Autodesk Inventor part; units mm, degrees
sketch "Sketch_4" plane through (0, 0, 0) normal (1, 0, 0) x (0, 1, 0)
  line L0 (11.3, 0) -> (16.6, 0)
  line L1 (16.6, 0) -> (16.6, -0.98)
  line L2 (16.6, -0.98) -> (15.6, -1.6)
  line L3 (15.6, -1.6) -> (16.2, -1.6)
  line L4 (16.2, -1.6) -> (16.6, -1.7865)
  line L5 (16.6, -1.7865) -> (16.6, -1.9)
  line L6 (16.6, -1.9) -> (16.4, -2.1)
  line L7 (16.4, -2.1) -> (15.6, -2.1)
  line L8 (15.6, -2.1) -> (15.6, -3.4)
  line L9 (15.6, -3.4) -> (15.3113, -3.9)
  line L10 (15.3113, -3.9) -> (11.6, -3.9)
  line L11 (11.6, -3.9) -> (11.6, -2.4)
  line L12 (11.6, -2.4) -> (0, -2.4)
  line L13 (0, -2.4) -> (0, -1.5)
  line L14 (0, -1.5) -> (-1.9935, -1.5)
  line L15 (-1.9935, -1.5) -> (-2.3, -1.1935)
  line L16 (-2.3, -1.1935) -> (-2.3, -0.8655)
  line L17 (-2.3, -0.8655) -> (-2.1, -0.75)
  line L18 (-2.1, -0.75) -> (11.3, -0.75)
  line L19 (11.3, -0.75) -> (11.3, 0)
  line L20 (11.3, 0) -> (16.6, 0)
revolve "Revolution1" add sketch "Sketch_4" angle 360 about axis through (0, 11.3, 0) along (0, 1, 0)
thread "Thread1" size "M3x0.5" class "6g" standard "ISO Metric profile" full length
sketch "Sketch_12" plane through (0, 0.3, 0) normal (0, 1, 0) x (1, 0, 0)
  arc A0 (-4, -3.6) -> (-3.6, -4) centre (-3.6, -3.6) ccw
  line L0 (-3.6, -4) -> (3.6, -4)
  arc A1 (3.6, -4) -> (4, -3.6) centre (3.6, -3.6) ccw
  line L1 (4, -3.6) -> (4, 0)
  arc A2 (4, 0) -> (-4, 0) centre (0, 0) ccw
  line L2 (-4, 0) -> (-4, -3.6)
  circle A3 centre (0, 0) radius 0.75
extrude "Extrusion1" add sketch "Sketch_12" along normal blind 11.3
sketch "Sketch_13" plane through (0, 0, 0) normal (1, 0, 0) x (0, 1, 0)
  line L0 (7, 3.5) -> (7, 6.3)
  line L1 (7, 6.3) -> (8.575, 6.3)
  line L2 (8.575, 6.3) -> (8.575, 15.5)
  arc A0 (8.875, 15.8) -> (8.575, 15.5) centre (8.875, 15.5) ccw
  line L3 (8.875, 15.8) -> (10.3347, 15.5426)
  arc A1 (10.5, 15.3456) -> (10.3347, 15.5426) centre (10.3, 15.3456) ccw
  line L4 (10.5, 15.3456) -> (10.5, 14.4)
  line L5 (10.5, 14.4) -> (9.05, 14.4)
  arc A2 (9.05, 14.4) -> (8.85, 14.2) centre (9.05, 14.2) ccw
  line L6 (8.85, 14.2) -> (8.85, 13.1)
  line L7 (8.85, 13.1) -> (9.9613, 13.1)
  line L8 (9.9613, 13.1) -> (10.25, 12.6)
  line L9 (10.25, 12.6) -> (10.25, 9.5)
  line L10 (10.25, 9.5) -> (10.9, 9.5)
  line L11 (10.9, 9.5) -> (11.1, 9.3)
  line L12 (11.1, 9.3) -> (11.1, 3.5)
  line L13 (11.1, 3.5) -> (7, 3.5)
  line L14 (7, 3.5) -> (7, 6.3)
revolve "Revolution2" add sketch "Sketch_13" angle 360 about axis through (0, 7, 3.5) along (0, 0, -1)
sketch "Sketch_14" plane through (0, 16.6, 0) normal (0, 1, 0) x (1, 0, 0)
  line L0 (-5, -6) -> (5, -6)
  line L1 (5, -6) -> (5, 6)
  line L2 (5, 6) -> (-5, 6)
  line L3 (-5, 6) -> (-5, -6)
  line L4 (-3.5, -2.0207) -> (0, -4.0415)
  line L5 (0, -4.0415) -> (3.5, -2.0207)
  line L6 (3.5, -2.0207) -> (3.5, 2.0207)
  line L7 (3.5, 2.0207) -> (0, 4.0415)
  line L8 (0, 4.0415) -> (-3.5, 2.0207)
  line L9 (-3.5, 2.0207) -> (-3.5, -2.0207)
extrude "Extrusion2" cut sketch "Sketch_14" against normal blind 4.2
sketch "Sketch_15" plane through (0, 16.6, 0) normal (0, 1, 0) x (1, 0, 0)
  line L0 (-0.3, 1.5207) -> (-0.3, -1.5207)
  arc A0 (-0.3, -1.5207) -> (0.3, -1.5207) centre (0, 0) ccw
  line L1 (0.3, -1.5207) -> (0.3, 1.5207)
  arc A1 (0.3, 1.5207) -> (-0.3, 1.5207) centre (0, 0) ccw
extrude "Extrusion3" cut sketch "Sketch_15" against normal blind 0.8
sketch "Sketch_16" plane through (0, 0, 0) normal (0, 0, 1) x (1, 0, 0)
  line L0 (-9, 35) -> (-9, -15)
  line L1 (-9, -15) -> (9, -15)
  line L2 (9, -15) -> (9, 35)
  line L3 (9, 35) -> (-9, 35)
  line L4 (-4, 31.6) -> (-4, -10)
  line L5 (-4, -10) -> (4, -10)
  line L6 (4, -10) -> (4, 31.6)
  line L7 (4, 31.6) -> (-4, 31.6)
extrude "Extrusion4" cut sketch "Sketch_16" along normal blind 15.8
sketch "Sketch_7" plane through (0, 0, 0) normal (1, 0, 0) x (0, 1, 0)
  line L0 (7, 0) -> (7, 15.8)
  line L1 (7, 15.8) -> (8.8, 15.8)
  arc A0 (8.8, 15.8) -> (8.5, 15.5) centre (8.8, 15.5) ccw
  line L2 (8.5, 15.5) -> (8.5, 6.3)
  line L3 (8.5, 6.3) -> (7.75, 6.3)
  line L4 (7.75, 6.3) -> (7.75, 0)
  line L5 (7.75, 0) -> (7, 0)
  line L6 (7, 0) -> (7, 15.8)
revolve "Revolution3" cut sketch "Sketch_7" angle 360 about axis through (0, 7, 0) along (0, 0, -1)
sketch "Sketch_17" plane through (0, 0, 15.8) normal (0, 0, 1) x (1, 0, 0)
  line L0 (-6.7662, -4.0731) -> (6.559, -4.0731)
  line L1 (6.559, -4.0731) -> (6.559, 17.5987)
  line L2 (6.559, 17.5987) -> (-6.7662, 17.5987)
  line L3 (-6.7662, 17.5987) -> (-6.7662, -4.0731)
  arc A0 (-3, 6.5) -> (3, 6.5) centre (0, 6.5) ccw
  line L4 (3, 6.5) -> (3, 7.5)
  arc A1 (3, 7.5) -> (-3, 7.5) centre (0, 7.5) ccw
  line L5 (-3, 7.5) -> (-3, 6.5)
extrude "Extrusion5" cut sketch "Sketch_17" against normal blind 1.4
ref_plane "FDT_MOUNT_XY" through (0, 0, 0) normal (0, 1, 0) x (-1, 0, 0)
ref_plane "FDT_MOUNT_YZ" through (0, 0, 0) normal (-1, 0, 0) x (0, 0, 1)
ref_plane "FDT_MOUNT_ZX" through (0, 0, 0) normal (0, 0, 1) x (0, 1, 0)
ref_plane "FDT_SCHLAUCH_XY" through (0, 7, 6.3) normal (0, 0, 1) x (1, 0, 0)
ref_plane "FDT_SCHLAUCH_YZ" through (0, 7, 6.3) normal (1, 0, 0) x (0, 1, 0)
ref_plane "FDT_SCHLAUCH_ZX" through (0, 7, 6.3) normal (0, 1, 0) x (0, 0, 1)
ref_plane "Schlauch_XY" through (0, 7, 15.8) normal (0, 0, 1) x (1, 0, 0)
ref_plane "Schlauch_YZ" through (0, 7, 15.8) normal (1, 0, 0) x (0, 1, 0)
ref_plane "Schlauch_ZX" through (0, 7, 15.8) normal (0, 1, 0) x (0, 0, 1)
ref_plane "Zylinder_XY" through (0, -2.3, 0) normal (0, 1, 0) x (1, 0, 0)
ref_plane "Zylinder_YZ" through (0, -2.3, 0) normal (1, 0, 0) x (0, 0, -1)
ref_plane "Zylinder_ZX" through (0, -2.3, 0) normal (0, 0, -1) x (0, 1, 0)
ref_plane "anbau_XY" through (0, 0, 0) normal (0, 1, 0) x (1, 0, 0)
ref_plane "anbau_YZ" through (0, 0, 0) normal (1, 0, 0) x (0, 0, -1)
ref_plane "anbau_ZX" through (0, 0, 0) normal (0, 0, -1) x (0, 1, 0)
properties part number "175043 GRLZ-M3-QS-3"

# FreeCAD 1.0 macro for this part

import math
import FreeCAD as App
import Part
import Sketcher

V = App.Vector
Q = App.Units.Quantity


def add_polygon(sketch, points):
    """Adds a closed chain of lines whose ends are joined by coincident constraints."""
    first, n = sketch.GeometryCount, len(points)
    for a, b in zip(points, points[1:] + points[:1]):
        sketch.addGeometry(Part.LineSegment(App.Vector(*a, 0), App.Vector(*b, 0)), False)
    for i in range(n):
        sketch.addConstraint(Sketcher.Constraint("Coincident", first + i, 2, first + (i + 1) % n, 1))

doc = App.newDocument("Part")
body = doc.addObject("PartDesign::Body", "Body")

# Sketch on YZ plane
sketch1 = doc.addObject("Sketcher::SketchObject", "Sketch")
body.addObject(sketch1)
sketch1.AttachmentSupport = (doc.YZ_Plane, [""])
sketch1.MapMode = "FlatFace"
add_polygon(sketch1, [(16.6, 0), (11.3, 0), (11.3, -0.75), (-2.1, -0.75), (-2.3, -0.8655), (-2.3, -1.1935), (-1.9935, -1.5), (0, -1.5), (0, -2.4), (11.6, -2.4), (11.6, -3.9), (15.3113, -3.9), (15.6, -3.4), (15.6, -2.1), (16.4, -2.1), (16.6, -1.9), (16.6, -1.7865), (16.2, -1.6), (15.6, -1.6), (16.6, -0.98)])  # lines 0-19
sketch1.addConstraint(Sketcher.Constraint("Horizontal", 0))
sketch1.addConstraint(Sketcher.Constraint("Vertical", 1))
sketch1.addConstraint(Sketcher.Constraint("Horizontal", 2))
sketch1.addConstraint(Sketcher.Constraint("Vertical", 4))
sketch1.addConstraint(Sketcher.Constraint("Horizontal", 6))
sketch1.addConstraint(Sketcher.Constraint("Vertical", 7))
sketch1.addConstraint(Sketcher.Constraint("Horizontal", 8))
sketch1.addConstraint(Sketcher.Constraint("Vertical", 9))
sketch1.addConstraint(Sketcher.Constraint("Horizontal", 10))
sketch1.addConstraint(Sketcher.Constraint("Vertical", 12))
sketch1.addConstraint(Sketcher.Constraint("Horizontal", 13))
sketch1.addConstraint(Sketcher.Constraint("Vertical", 15))
sketch1.addConstraint(Sketcher.Constraint("Horizontal", 17))
sketch1.addConstraint(Sketcher.Constraint("Vertical", 19))
sketch1.addConstraint(Sketcher.Constraint("PointOnObject", 0, 2, -1))
sketch1.addConstraint(Sketcher.Constraint("PointOnObject", 6, 2, -2))
sketch1.addConstraint(Sketcher.Constraint("Perpendicular", 5, 14))
sketch1.addConstraint(Sketcher.Constraint("Vertical", 12, 2, 17, 2))
sketch1.addConstraint(Sketcher.Constraint("Vertical", 15, 2, 18, 2))
sketch1.addConstraint(Sketcher.Constraint("Angle", 5, Q("-45 deg")))
sketch1.addConstraint(Sketcher.Constraint("DistanceX", 0, 2, 0, 1, 5.3))
sketch1.addConstraint(Sketcher.Constraint("DistanceX", 2, 2, 2, 1, 13.4))
sketch1.addConstraint(Sketcher.Constraint("DistanceX", 8, 1, 8, 2, 11.6))
sketch1.addConstraint(Sketcher.Constraint("DistanceX", 13, 1, 13, 2, 0.8))
sketch1.addConstraint(Sketcher.Constraint("DistanceX", 17, 2, 17, 1, 0.6))
sketch1.addConstraint(Sketcher.Constraint("DistanceY", 7, 2, 7, 1, 0.9))
sketch1.addConstraint(Sketcher.Constraint("DistanceY", 9, 2, 9, 1, 1.5))
sketch1.addConstraint(Sketcher.Constraint("DistanceY", 12, 1, 12, 2, 1.3))
sketch1.addConstraint(Sketcher.Constraint("Angle", 18, Q("31.799 deg")))
sketch1.addConstraint(Sketcher.Constraint("DistanceX", 9, 2, 11, 2, 4.0))
sketch1.addConstraint(Sketcher.Constraint("DistanceY", 11, 2, 8, 2, 1.0))
sketch1.addConstraint(Sketcher.Constraint("DistanceX", 12, 2, 14, 2, 1.0))
sketch1.addConstraint(Sketcher.Constraint("DistanceY", 1, 2, 1, 1, 0.75))
sketch1.addConstraint(Sketcher.Constraint("DistanceY", 19, 1, 19, 2, 0.98))
sketch1.addConstraint(Sketcher.Constraint("DistanceX", 3, 2, -1, 1, 2.3))
sketch1.addConstraint(Sketcher.Constraint("DistanceY", 5, 2, -1, 1, 1.5))
sketch1.addConstraint(Sketcher.Constraint("DistanceY", 4, 2, 4, 1, 0.328))
sketch1.addConstraint(Sketcher.Constraint("Distance", 3, 0.231))
sketch1.addConstraint(Sketcher.Constraint("DistanceX", 10, 1, 10, 2, 3.7113))
sketch1.addConstraint(Sketcher.Constraint("DistanceY", 15, 1, 15, 2, 0.1135))
revolution = doc.addObject("PartDesign::Revolution", "Revolution")
body.addObject(revolution)
revolution.Profile = sketch1
revolution.ReferenceAxis = (sketch1, ["H_Axis"])
revolution.Angle = 360

# Sketch on XZ plane
sketch2 = doc.addObject("Sketcher::SketchObject", "Sketch001")
body.addObject(sketch2)
sketch2.AttachmentSupport = (doc.XZ_Plane, [""])
sketch2.MapMode = "FlatFace"
sketch2.AttachmentOffset = App.Placement(V(0, 0, -0.3), App.Rotation())
sketch2.addGeometry(Part.LineSegment(V(-4, 0, 0), V(-4, 3.6, 0)), False)
sketch2.addGeometry(Part.ArcOfCircle(Part.Circle(V(-3.6, 3.6, 0), V(0, 0, 1), 0.4), math.radians(90), math.radians(180)), False)
sketch2.addGeometry(Part.LineSegment(V(-3.6, 4, 0), V(3.6, 4, 0)), False)
sketch2.addGeometry(Part.ArcOfCircle(Part.Circle(V(3.6, 3.6, 0), V(0, 0, 1), 0.4), math.radians(0), math.radians(90)), False)
sketch2.addGeometry(Part.LineSegment(V(4, 3.6, 0), V(4, 0, 0)), False)
sketch2.addGeometry(Part.ArcOfCircle(Part.Circle(V(0, 0, 0), V(0, 0, 1), 4), math.radians(180), math.radians(360)), False)
sketch2.addGeometry(Part.Circle(V(0, 0, 0), V(0, 0, 1), 0.75), False)
sketch2.addConstraint(Sketcher.Constraint("Tangent", 0, 2, 1, 2))
sketch2.addConstraint(Sketcher.Constraint("Tangent", 1, 1, 2, 1))
sketch2.addConstraint(Sketcher.Constraint("Tangent", 2, 2, 3, 2))
sketch2.addConstraint(Sketcher.Constraint("Tangent", 3, 1, 4, 1))
sketch2.addConstraint(Sketcher.Constraint("Tangent", 4, 2, 5, 2))
sketch2.addConstraint(Sketcher.Constraint("Tangent", 5, 1, 0, 1))
sketch2.addConstraint(Sketcher.Constraint("Vertical", 0))
sketch2.addConstraint(Sketcher.Constraint("Horizontal", 2))
sketch2.addConstraint(Sketcher.Constraint("Vertical", 4))
sketch2.addConstraint(Sketcher.Constraint("Coincident", 5, 3, -1, 1))
sketch2.addConstraint(Sketcher.Constraint("Coincident", 6, 3, -1, 1))
sketch2.addConstraint(Sketcher.Constraint("Equal", 1, 3))
sketch2.addConstraint(Sketcher.Constraint("Radius", 5, 4.0))
sketch2.addConstraint(Sketcher.Constraint("Diameter", 6, 1.5))
sketch2.addConstraint(Sketcher.Constraint("Radius", 1, 0.4))
sketch2.addConstraint(Sketcher.Constraint("DistanceY", 0, 1, 0, 2, 3.6))
pad1 = doc.addObject("PartDesign::Pad", "Pad")
body.addObject(pad1)
pad1.Profile = sketch2
pad1.Length = 11.3
pad1.Reversed = True

# Sketch on YZ plane
sketch3 = doc.addObject("Sketcher::SketchObject", "Sketch002")
body.addObject(sketch3)
sketch3.AttachmentSupport = (doc.YZ_Plane, [""])
sketch3.MapMode = "FlatFace"
sketch3.addGeometry(Part.LineSegment(V(7, 6.3, 0), V(7, 3.5, 0)), False)
sketch3.addGeometry(Part.LineSegment(V(7, 3.5, 0), V(11.1, 3.5, 0)), False)
sketch3.addGeometry(Part.LineSegment(V(11.1, 3.5, 0), V(11.1, 9.3, 0)), False)
sketch3.addGeometry(Part.LineSegment(V(11.1, 9.3, 0), V(10.9, 9.5, 0)), False)
sketch3.addGeometry(Part.LineSegment(V(10.9, 9.5, 0), V(10.25, 9.5, 0)), False)
sketch3.addGeometry(Part.LineSegment(V(10.25, 9.5, 0), V(10.25, 12.6, 0)), False)
sketch3.addGeometry(Part.LineSegment(V(10.25, 12.6, 0), V(9.9613, 13.1, 0)), False)
sketch3.addGeometry(Part.LineSegment(V(9.9613, 13.1, 0), V(8.85, 13.1, 0)), False)
sketch3.addGeometry(Part.LineSegment(V(8.85, 13.1, 0), V(8.85, 14.2, 0)), False)
sketch3.addGeometry(Part.ArcOfCircle(Part.Circle(V(9.05, 14.2, 0), V(0, 0, 1), 0.2), math.radians(90), math.radians(180)), False)
sketch3.addGeometry(Part.LineSegment(V(9.05, 14.4, 0), V(10.5, 14.4, 0)), False)
sketch3.addGeometry(Part.LineSegment(V(10.5, 14.4, 0), V(10.5, 15.3456, 0)), False)
sketch3.addGeometry(Part.ArcOfCircle(Part.Circle(V(10.3, 15.3456, 0), V(0, 0, 1), 0.2), math.radians(0), math.radians(80.010272)), False)
sketch3.addGeometry(Part.LineSegment(V(10.3347, 15.5426, 0), V(8.875, 15.8, 0)), False)
sketch3.addGeometry(Part.ArcOfCircle(Part.Circle(V(8.875, 15.5, 0), V(0, 0, 1), 0.3), math.radians(90), math.radians(180)), False)
sketch3.addGeometry(Part.LineSegment(V(8.575, 15.5, 0), V(8.575, 6.3, 0)), False)
sketch3.addGeometry(Part.LineSegment(V(8.575, 6.3, 0), V(7, 6.3, 0)), False)
sketch3.addGeometry(Part.LineSegment(V(7, 15.8, 0), V(7, 3.5, 0)), True)  # axis
sketch3.addConstraint(Sketcher.Constraint("Coincident", 0, 2, 1, 1))
sketch3.addConstraint(Sketcher.Constraint("Coincident", 1, 2, 2, 1))
sketch3.addConstraint(Sketcher.Constraint("Coincident", 2, 2, 3, 1))
sketch3.addConstraint(Sketcher.Constraint("Coincident", 3, 2, 4, 1))
sketch3.addConstraint(Sketcher.Constraint("Coincident", 4, 2, 5, 1))
sketch3.addConstraint(Sketcher.Constraint("Coincident", 5, 2, 6, 1))
sketch3.addConstraint(Sketcher.Constraint("Coincident", 6, 2, 7, 1))
sketch3.addConstraint(Sketcher.Constraint("Coincident", 7, 2, 8, 1))
sketch3.addConstraint(Sketcher.Constraint("Tangent", 8, 2, 9, 2))
sketch3.addConstraint(Sketcher.Constraint("Tangent", 9, 1, 10, 1))
sketch3.addConstraint(Sketcher.Constraint("Coincident", 10, 2, 11, 1))
sketch3.addConstraint(Sketcher.Constraint("Tangent", 11, 2, 12, 1))
sketch3.addConstraint(Sketcher.Constraint("Tangent", 12, 2, 13, 1))
sketch3.addConstraint(Sketcher.Constraint("Coincident", 13, 2, 14, 1))
sketch3.addConstraint(Sketcher.Constraint("Tangent", 14, 2, 15, 1))
sketch3.addConstraint(Sketcher.Constraint("Coincident", 15, 2, 16, 1))
sketch3.addConstraint(Sketcher.Constraint("Coincident", 16, 2, 0, 1))
sketch3.addConstraint(Sketcher.Constraint("Vertical", 0))
sketch3.addConstraint(Sketcher.Constraint("Horizontal", 1))
sketch3.addConstraint(Sketcher.Constraint("Vertical", 2))
sketch3.addConstraint(Sketcher.Constraint("Horizontal", 4))
sketch3.addConstraint(Sketcher.Constraint("Vertical", 5))
sketch3.addConstraint(Sketcher.Constraint("Horizontal", 7))
sketch3.addConstraint(Sketcher.Constraint("Vertical", 8))
sketch3.addConstraint(Sketcher.Constraint("Horizontal", 10))
sketch3.addConstraint(Sketcher.Constraint("Vertical", 11))
sketch3.addConstraint(Sketcher.Constraint("Vertical", 15))
sketch3.addConstraint(Sketcher.Constraint("Horizontal", 16))
sketch3.addConstraint(Sketcher.Constraint("Vertical", 17))
sketch3.addConstraint(Sketcher.Constraint("Coincident", 17, 2, 0, 2))
sketch3.addConstraint(Sketcher.Constraint("Equal", 9, 12))
sketch3.addConstraint(Sketcher.Constraint("Horizontal", 13, 2, 17, 1))
sketch3.addConstraint(Sketcher.Constraint("Vertical", 14, 3, 13, 2))
sketch3.addConstraint(Sketcher.Constraint("Radius", 9, 0.2))
sketch3.addConstraint(Sketcher.Constraint("Radius", 14, 0.3))
sketch3.addConstraint(Sketcher.Constraint("Angle", 3, Q("135 deg")))
sketch3.addConstraint(Sketcher.Constraint("Angle", 13, Q("169.9994 deg")))
sketch3.addConstraint(Sketcher.Constraint("DistanceX", 1, 1, 1, 2, 4.1))
sketch3.addConstraint(Sketcher.Constraint("DistanceY", 0, 2, 0, 1, 2.8))
sketch3.addConstraint(Sketcher.Constraint("DistanceY", 2, 1, 2, 2, 5.8))
sketch3.addConstraint(Sketcher.Constraint("DistanceY", 5, 1, 5, 2, 3.1))
sketch3.addConstraint(Sketcher.Constraint("DistanceY", 8, 1, 8, 2, 1.1))
sketch3.addConstraint(Sketcher.Constraint("DistanceY", 15, 2, 15, 1, 9.2))
sketch3.addConstraint(Sketcher.Constraint("DistanceX", -1, 1, 0, 2, 7.0))
sketch3.addConstraint(Sketcher.Constraint("DistanceY", 1, 2, 3, 2, 6.0))
sketch3.addConstraint(Sketcher.Constraint("DistanceX", 4, 2, 4, 1, 0.65))
sketch3.addConstraint(Sketcher.Constraint("DistanceX", 10, 1, 10, 2, 1.45))
sketch3.addConstraint(Sketcher.Constraint("DistanceY", -1, 1, 9, 3, 14.2))
sketch3.addConstraint(Sketcher.Constraint("DistanceX", -1, 1, 12, 3, 10.3))
sketch3.addConstraint(Sketcher.Constraint("DistanceY", -1, 1, 14, 3, 15.5))
sketch3.addConstraint(Sketcher.Constraint("DistanceX", 16, 2, 16, 1, 1.575))
sketch3.addConstraint(Sketcher.Constraint("DistanceX", 7, 2, 7, 1, 1.1113))
revolution2 = doc.addObject("PartDesign::Revolution", "Revolution001")
body.addObject(revolution2)
revolution2.Profile = sketch3
revolution2.ReferenceAxis = (sketch3, ["Axis0"])
revolution2.Angle = 360

# Sketch on XZ plane
sketch4 = doc.addObject("Sketcher::SketchObject", "Sketch003")
body.addObject(sketch4)
sketch4.AttachmentSupport = (doc.XZ_Plane, [""])
sketch4.MapMode = "FlatFace"
sketch4.AttachmentOffset = App.Placement(V(0, 0, -16.6), App.Rotation())
add_polygon(sketch4, [(-5, -6), (-5, 6), (5, 6), (5, -6)])  # lines 0-3
add_polygon(sketch4, [(0, 4.0415), (-3.5, 2.0207), (-3.5, -2.0207), (0, -4.0415), (3.5, -2.0207), (3.5, 2.0207)])  # lines 4-9
sketch4.addConstraint(Sketcher.Constraint("Vertical", 0))
sketch4.addConstraint(Sketcher.Constraint("Horizontal", 1))
sketch4.addConstraint(Sketcher.Constraint("Vertical", 2))
sketch4.addConstraint(Sketcher.Constraint("Horizontal", 3))
sketch4.addConstraint(Sketcher.Constraint("Vertical", 5))
sketch4.addConstraint(Sketcher.Constraint("Vertical", 8))
sketch4.addConstraint(Sketcher.Constraint("Symmetric", 0, 2, 2, 2, -1, 1))
sketch4.addConstraint(Sketcher.Constraint("Symmetric", 4, 2, 7, 2, -1, 1))
sketch4.addConstraint(Sketcher.Constraint("Symmetric", 6, 2, 9, 2, -1, 1))
sketch4.addConstraint(Sketcher.Constraint("PointOnObject", 6, 2, -2))
sketch4.addConstraint(Sketcher.Constraint("Parallel", 6, 9))
sketch4.addConstraint(Sketcher.Constraint("Horizontal", 5, 2, 7, 2))
sketch4.addConstraint(Sketcher.Constraint("DistanceX", 1, 1, 1, 2, 10.0))
sketch4.addConstraint(Sketcher.Constraint("DistanceY", 0, 1, 0, 2, 12.0))
sketch4.addConstraint(Sketcher.Constraint("Angle", 4, Q("-149.999 deg")))
sketch4.addConstraint(Sketcher.Constraint("DistanceX", 5, 2, 7, 2, 7.0))
sketch4.addConstraint(Sketcher.Constraint("DistanceY", 5, 2, 5, 1, 4.0414))
pocket1 = doc.addObject("PartDesign::Pocket", "Pocket")
body.addObject(pocket1)
pocket1.Profile = sketch4
pocket1.Length = 4.2
pocket1.Reversed = True

# Sketch on XZ plane
sketch5 = doc.addObject("Sketcher::SketchObject", "Sketch004")
body.addObject(sketch5)
sketch5.AttachmentSupport = (doc.XZ_Plane, [""])
sketch5.MapMode = "FlatFace"
sketch5.AttachmentOffset = App.Placement(V(0, 0, -16.6), App.Rotation())
sketch5.addGeometry(Part.ArcOfCircle(Part.Circle(V(0, 0, 0), V(0, 0, 1), 1.550009), math.radians(-101.15987), math.radians(-78.84013)), False)
sketch5.addGeometry(Part.LineSegment(V(-0.3, -1.5207, 0), V(-0.3, 1.5207, 0)), False)
sketch5.addGeometry(Part.ArcOfCircle(Part.Circle(V(0, 0, 0), V(0, 0, 1), 1.550009), math.radians(78.84013), math.radians(101.15987)), False)
sketch5.addGeometry(Part.LineSegment(V(0.3, 1.5207, 0), V(0.3, -1.5207, 0)), False)
sketch5.addConstraint(Sketcher.Constraint("Coincident", 0, 1, 1, 1))
sketch5.addConstraint(Sketcher.Constraint("Coincident", 1, 2, 2, 2))
sketch5.addConstraint(Sketcher.Constraint("Coincident", 2, 1, 3, 1))
sketch5.addConstraint(Sketcher.Constraint("Coincident", 3, 2, 0, 2))
sketch5.addConstraint(Sketcher.Constraint("Vertical", 1))
sketch5.addConstraint(Sketcher.Constraint("Vertical", 3))
sketch5.addConstraint(Sketcher.Constraint("Coincident", 0, 3, -1, 1))
sketch5.addConstraint(Sketcher.Constraint("Coincident", 2, 3, -1, 1))
sketch5.addConstraint(Sketcher.Constraint("Equal", 0, 2))
sketch5.addConstraint(Sketcher.Constraint("Horizontal", 1, 2, 2, 1))
sketch5.addConstraint(Sketcher.Constraint("Radius", 0, 1.55))
sketch5.addConstraint(Sketcher.Constraint("DistanceX", 0, 1, -1, 1, 0.3))
pocket2 = doc.addObject("PartDesign::Pocket", "Pocket001")
body.addObject(pocket2)
pocket2.Profile = sketch5
pocket2.Length = 0.8
pocket2.Reversed = True

# Sketch on XY plane
sketch6 = doc.addObject("Sketcher::SketchObject", "Sketch005")
body.addObject(sketch6)
sketch6.AttachmentSupport = (doc.XY_Plane, [""])
sketch6.MapMode = "FlatFace"
add_polygon(sketch6, [(9, 35), (-9, 35), (-9, -15), (9, -15)])  # lines 0-3
add_polygon(sketch6, [(-4, -10), (-4, 31.6), (4, 31.6), (4, -10)])  # lines 4-7
sketch6.addConstraint(Sketcher.Constraint("Horizontal", 0))
sketch6.addConstraint(Sketcher.Constraint("Vertical", 1))
sketch6.addConstraint(Sketcher.Constraint("Horizontal", 2))
sketch6.addConstraint(Sketcher.Constraint("Vertical", 3))
sketch6.addConstraint(Sketcher.Constraint("Vertical", 4))
sketch6.addConstraint(Sketcher.Constraint("Horizontal", 5))
sketch6.addConstraint(Sketcher.Constraint("Vertical", 6))
sketch6.addConstraint(Sketcher.Constraint("Horizontal", 7))
sketch6.addConstraint(Sketcher.Constraint("DistanceX", 0, 2, 0, 1, 18.0))
sketch6.addConstraint(Sketcher.Constraint("DistanceX", 5, 1, 5, 2, 8.0))
sketch6.addConstraint(Sketcher.Constraint("DistanceY", 1, 2, 1, 1, 50.0))
sketch6.addConstraint(Sketcher.Constraint("DistanceY", 4, 1, 4, 2, 41.6))
sketch6.addConstraint(Sketcher.Constraint("DistanceX", 0, 2, -1, 1, 9.0))
sketch6.addConstraint(Sketcher.Constraint("DistanceY", -1, 1, 0, 2, 35.0))
sketch6.addConstraint(Sketcher.Constraint("DistanceX", 4, 2, -1, 1, 4.0))
sketch6.addConstraint(Sketcher.Constraint("DistanceY", 6, 2, -1, 1, 10.0))
pocket3 = doc.addObject("PartDesign::Pocket", "Pocket002")
body.addObject(pocket3)
pocket3.Profile = sketch6
pocket3.Length = 15.8
pocket3.Reversed = True

# Sketch on YZ plane
sketch7 = doc.addObject("Sketcher::SketchObject", "Sketch006")
body.addObject(sketch7)
sketch7.AttachmentSupport = (doc.YZ_Plane, [""])
sketch7.MapMode = "FlatFace"
sketch7.addGeometry(Part.LineSegment(V(7, 15.8, 0), V(7, 0, 0)), False)
sketch7.addGeometry(Part.LineSegment(V(7, 0, 0), V(7.75, 0, 0)), False)
sketch7.addGeometry(Part.LineSegment(V(7.75, 0, 0), V(7.75, 6.3, 0)), False)
sketch7.addGeometry(Part.LineSegment(V(7.75, 6.3, 0), V(8.5, 6.3, 0)), False)
sketch7.addGeometry(Part.LineSegment(V(8.5, 6.3, 0), V(8.5, 15.5, 0)), False)
sketch7.addGeometry(Part.ArcOfCircle(Part.Circle(V(8.8, 15.5, 0), V(0, 0, 1), 0.3), math.radians(90), math.radians(180)), False)
sketch7.addGeometry(Part.LineSegment(V(8.8, 15.8, 0), V(7, 15.8, 0)), False)
sketch7.addGeometry(Part.LineSegment(V(7, 15.8, 0), V(7, 0, 0)), True)  # axis
sketch7.addConstraint(Sketcher.Constraint("Coincident", 0, 2, 1, 1))
sketch7.addConstraint(Sketcher.Constraint("Coincident", 1, 2, 2, 1))
sketch7.addConstraint(Sketcher.Constraint("Coincident", 2, 2, 3, 1))
sketch7.addConstraint(Sketcher.Constraint("Coincident", 3, 2, 4, 1))
sketch7.addConstraint(Sketcher.Constraint("Tangent", 4, 2, 5, 2))
sketch7.addConstraint(Sketcher.Constraint("Tangent", 5, 1, 6, 1))
sketch7.addConstraint(Sketcher.Constraint("Coincident", 6, 2, 0, 1))
sketch7.addConstraint(Sketcher.Constraint("Vertical", 0))
sketch7.addConstraint(Sketcher.Constraint("Horizontal", 1))
sketch7.addConstraint(Sketcher.Constraint("Vertical", 2))
sketch7.addConstraint(Sketcher.Constraint("Horizontal", 3))
sketch7.addConstraint(Sketcher.Constraint("Vertical", 4))
sketch7.addConstraint(Sketcher.Constraint("Horizontal", 6))
sketch7.addConstraint(Sketcher.Constraint("Vertical", 7))
sketch7.addConstraint(Sketcher.Constraint("Coincident", 7, 1, 6, 2))
sketch7.addConstraint(Sketcher.Constraint("PointOnObject", 0, 2, -1))
sketch7.addConstraint(Sketcher.Constraint("PointOnObject", 7, 2, -1))
sketch7.addConstraint(Sketcher.Constraint("Equal", 1, 3))
sketch7.addConstraint(Sketcher.Constraint("Radius", 5, 0.3))
sketch7.addConstraint(Sketcher.Constraint("DistanceX", 6, 2, 6, 1, 1.8))
sketch7.addConstraint(Sketcher.Constraint("DistanceY", 0, 2, 0, 1, 15.8))
sketch7.addConstraint(Sketcher.Constraint("DistanceY", 2, 1, 2, 2, 6.3))
sketch7.addConstraint(Sketcher.Constraint("DistanceX", -1, 1, 0, 2, 7.0))
groove = doc.addObject("PartDesign::Groove", "Groove")
body.addObject(groove)
groove.Profile = sketch7
groove.ReferenceAxis = (sketch7, ["Axis0"])
groove.Angle = 360

# Sketch on XY plane
sketch8 = doc.addObject("Sketcher::SketchObject", "Sketch007")
body.addObject(sketch8)
sketch8.AttachmentSupport = (doc.XY_Plane, [""])
sketch8.MapMode = "FlatFace"
sketch8.AttachmentOffset = App.Placement(V(0, 0, 15.8), App.Rotation())
add_polygon(sketch8, [(-6.7662, 17.5987), (-6.7662, -4.0731), (6.559, -4.0731), (6.559, 17.5987)])  # lines 0-3
sketch8.addGeometry(Part.ArcOfCircle(Part.Circle(V(0, 6.5, 0), V(0, 0, 1), 3), math.radians(180), math.radians(360)), False)  # 4
sketch8.addGeometry(Part.LineSegment(V(-3, 6.5, 0), V(-3, 7.5, 0)), False)  # 5
sketch8.addGeometry(Part.ArcOfCircle(Part.Circle(V(0, 7.5, 0), V(0, 0, 1), 3), math.radians(0), math.radians(180)), False)  # 6
sketch8.addGeometry(Part.LineSegment(V(3, 7.5, 0), V(3, 6.5, 0)), False)  # 7
sketch8.addConstraint(Sketcher.Constraint("Tangent", 4, 1, 5, 1))
sketch8.addConstraint(Sketcher.Constraint("Tangent", 5, 2, 6, 2))
sketch8.addConstraint(Sketcher.Constraint("Tangent", 6, 1, 7, 1))
sketch8.addConstraint(Sketcher.Constraint("Tangent", 7, 2, 4, 2))
sketch8.addConstraint(Sketcher.Constraint("Vertical", 0))
sketch8.addConstraint(Sketcher.Constraint("Horizontal", 1))
sketch8.addConstraint(Sketcher.Constraint("Vertical", 2))
sketch8.addConstraint(Sketcher.Constraint("Horizontal", 3))
sketch8.addConstraint(Sketcher.Constraint("Vertical", 5))
sketch8.addConstraint(Sketcher.Constraint("Vertical", 7))
sketch8.addConstraint(Sketcher.Constraint("PointOnObject", 4, 3, -2))
sketch8.addConstraint(Sketcher.Constraint("Radius", 4, 3.0))
sketch8.addConstraint(Sketcher.Constraint("DistanceY", 5, 1, 5, 2, 1.0))
sketch8.addConstraint(Sketcher.Constraint("DistanceY", -1, 1, 4, 3, 6.5))
sketch8.addConstraint(Sketcher.Constraint("DistanceX", 1, 1, 1, 2, 13.3252))
sketch8.addConstraint(Sketcher.Constraint("DistanceY", 0, 2, 0, 1, 21.6718))
sketch8.addConstraint(Sketcher.Constraint("DistanceY", 0, 2, -1, 1, 4.073))
sketch8.addConstraint(Sketcher.Constraint("DistanceX", -1, 1, 1, 2, 6.559))
pocket4 = doc.addObject("PartDesign::Pocket", "Pocket003")
body.addObject(pocket4)
pocket4.Profile = sketch8
pocket4.Length = 1.4

doc.recompute()
